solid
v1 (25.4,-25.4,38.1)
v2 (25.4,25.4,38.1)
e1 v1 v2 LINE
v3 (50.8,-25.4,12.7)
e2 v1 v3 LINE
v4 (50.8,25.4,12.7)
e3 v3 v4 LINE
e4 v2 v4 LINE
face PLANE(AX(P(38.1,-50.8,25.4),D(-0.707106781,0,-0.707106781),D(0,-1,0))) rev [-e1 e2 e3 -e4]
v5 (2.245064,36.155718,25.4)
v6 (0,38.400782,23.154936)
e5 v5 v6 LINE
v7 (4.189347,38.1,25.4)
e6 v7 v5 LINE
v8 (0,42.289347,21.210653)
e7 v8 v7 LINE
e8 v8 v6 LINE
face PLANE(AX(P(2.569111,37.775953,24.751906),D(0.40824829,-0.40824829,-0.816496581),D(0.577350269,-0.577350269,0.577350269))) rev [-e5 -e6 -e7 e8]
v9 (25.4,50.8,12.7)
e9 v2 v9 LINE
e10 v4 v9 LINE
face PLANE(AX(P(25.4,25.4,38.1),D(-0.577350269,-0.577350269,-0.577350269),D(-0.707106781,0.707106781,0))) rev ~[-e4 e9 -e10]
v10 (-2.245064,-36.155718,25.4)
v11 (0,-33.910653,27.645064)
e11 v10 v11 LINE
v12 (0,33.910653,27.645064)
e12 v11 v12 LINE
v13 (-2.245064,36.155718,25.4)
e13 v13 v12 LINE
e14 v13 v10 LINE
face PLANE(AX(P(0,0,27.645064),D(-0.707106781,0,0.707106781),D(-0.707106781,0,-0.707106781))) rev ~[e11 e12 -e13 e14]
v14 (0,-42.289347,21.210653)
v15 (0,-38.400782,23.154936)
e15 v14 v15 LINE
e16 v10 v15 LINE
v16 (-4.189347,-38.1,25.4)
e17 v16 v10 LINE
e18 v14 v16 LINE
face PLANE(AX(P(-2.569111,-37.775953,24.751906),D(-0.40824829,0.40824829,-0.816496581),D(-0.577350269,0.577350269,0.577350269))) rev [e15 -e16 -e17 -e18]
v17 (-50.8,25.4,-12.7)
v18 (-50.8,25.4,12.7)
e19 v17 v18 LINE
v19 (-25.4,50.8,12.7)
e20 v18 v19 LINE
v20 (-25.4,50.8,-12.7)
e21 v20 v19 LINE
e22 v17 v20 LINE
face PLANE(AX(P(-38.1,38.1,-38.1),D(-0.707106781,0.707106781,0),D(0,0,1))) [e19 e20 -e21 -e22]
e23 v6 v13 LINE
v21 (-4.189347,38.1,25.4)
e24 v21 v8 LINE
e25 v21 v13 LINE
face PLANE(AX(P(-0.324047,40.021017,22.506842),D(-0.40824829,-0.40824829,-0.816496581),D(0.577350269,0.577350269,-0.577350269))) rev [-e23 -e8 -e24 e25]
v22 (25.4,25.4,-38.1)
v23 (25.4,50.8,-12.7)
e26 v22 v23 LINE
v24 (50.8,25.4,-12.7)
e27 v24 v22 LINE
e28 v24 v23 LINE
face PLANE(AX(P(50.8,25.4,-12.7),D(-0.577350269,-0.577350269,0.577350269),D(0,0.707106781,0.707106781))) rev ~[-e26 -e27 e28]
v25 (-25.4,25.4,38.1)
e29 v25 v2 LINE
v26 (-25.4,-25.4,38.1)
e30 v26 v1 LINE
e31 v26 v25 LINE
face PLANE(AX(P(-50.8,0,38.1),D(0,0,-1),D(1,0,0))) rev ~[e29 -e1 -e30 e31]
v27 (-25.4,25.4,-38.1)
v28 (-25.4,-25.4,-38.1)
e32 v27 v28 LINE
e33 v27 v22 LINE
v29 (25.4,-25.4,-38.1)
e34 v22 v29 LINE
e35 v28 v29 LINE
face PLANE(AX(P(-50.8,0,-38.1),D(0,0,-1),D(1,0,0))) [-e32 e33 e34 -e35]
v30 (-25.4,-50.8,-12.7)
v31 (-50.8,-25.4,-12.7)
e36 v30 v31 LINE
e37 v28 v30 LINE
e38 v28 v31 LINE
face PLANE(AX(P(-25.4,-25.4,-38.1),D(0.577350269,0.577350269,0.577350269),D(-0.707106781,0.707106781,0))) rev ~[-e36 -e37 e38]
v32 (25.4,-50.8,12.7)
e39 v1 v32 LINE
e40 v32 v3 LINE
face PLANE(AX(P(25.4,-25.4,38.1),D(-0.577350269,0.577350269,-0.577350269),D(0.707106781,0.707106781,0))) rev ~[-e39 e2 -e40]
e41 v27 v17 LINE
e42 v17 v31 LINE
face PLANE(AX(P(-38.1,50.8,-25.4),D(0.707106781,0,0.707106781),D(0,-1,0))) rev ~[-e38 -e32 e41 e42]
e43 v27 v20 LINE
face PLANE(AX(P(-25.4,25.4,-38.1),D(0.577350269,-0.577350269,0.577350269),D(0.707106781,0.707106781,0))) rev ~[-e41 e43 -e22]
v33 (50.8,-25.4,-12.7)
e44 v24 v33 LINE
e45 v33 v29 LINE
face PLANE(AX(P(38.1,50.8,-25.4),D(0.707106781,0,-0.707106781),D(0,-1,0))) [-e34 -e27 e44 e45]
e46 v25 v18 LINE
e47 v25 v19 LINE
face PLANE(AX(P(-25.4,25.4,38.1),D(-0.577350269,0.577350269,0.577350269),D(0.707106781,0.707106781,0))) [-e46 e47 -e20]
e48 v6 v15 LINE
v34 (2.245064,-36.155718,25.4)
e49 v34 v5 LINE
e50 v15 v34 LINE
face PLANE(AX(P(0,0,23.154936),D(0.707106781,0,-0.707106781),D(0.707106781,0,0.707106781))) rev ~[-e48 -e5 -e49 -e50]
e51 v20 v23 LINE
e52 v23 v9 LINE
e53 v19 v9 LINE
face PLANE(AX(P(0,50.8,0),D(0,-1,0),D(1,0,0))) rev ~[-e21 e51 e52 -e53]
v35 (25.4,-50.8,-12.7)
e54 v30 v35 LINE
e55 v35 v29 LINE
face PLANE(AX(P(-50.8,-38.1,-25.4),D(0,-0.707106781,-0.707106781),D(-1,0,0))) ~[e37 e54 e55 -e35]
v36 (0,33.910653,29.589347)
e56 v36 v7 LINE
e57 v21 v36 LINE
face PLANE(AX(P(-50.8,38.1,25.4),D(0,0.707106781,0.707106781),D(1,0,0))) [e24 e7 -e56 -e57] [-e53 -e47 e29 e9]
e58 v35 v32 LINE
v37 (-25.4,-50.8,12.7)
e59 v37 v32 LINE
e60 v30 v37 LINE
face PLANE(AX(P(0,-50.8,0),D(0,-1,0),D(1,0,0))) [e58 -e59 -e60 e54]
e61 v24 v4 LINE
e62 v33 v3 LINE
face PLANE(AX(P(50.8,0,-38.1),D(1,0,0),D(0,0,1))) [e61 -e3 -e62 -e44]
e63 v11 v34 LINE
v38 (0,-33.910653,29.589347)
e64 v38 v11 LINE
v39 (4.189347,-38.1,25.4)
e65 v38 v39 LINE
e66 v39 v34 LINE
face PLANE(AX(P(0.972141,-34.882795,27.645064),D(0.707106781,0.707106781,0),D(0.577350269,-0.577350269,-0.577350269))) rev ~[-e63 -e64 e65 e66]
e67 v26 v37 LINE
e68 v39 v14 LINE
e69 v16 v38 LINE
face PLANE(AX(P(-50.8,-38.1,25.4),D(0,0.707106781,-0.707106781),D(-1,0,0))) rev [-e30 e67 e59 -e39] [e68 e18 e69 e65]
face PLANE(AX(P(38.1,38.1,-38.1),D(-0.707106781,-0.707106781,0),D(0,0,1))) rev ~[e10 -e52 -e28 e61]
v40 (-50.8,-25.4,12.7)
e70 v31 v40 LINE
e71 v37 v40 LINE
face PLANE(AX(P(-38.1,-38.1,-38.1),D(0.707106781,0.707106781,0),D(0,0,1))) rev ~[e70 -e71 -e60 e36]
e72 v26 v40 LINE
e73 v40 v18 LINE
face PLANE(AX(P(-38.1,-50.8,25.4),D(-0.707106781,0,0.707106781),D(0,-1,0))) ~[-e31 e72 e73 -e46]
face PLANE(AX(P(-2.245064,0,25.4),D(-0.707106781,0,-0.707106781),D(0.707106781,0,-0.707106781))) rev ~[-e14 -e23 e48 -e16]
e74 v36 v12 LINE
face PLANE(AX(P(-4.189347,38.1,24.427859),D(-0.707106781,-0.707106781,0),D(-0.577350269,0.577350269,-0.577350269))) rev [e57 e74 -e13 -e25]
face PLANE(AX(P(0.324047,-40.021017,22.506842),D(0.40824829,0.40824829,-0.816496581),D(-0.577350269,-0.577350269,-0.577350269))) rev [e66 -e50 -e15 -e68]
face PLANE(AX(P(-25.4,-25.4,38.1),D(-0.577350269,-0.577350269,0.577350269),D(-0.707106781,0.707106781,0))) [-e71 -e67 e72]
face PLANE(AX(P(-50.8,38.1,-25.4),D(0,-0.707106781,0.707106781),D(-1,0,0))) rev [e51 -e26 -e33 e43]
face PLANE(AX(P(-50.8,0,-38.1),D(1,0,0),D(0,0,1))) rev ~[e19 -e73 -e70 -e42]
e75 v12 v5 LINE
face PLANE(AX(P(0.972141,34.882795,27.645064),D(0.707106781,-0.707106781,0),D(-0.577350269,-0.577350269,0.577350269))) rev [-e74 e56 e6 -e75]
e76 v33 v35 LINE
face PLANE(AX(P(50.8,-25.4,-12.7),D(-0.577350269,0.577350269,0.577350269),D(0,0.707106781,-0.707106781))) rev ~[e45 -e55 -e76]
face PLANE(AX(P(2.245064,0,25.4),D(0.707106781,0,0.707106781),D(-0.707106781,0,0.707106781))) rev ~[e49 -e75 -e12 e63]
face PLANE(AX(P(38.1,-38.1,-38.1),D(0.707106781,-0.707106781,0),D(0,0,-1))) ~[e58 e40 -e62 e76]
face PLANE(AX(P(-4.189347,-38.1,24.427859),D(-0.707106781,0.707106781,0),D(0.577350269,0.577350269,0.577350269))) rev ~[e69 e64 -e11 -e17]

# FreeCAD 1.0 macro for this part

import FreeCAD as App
import Part
import Sketcher
from FreeCAD import Vector
Q = App.Units.Quantity


def edges_at(feature, points):
    """Names of the edges that pass closest to the given points."""
    edges = feature.Shape.Edges
    near = lambda p: min(range(len(edges)), key=lambda i: edges[i].distToShape(Part.Vertex(*p))[0])
    return sorted({f"Edge{near(p) + 1}" for p in points})


def add_polygon(sketch, points):
    """Adds a closed chain of lines whose ends are joined by coincident constraints."""
    first, n = sketch.GeometryCount, len(points)
    for a, b in zip(points, points[1:] + points[:1]):
        sketch.addGeometry(Part.LineSegment(App.Vector(*a, 0), App.Vector(*b, 0)), False)
    for i in range(n):
        sketch.addConstraint(Sketcher.Constraint("Coincident", first + i, 2, first + (i + 1) % n, 1))

doc = App.newDocument("Part")
body = doc.addObject("PartDesign::Body", "Body")

# Sketch on XZ plane
sketch1 = doc.addObject("Sketcher::SketchObject", "Sketch")
body.addObject(sketch1)
sketch1.AttachmentSupport = (doc.XZ_Plane, [""])
sketch1.MapMode = "FlatFace"
add_polygon(sketch1, [(-51, 38), (-51, -38), (51, -38), (51, 38)])  # lines 0-3
sketch1.addConstraint(Sketcher.Constraint("Vertical", 0))
sketch1.addConstraint(Sketcher.Constraint("Horizontal", 1))
sketch1.addConstraint(Sketcher.Constraint("Vertical", 2))
sketch1.addConstraint(Sketcher.Constraint("Horizontal", 3))
sketch1.addConstraint(Sketcher.Constraint("Symmetric", 0, 2, 2, 2, -1, 1))
sketch1.addConstraint(Sketcher.Constraint("DistanceX", 1, 1, 1, 2, Q("4 in")))
sketch1.addConstraint(Sketcher.Constraint("DistanceY", 0, 2, 0, 1, Q("3 in")))
pad1 = doc.addObject("PartDesign::Pad", "Pad")
body.addObject(pad1)
pad1.Profile = sketch1
pad1.Length = Q("4 in")
pad1.Midplane = True
doc.recompute()

chamfer = doc.addObject("PartDesign::Chamfer", "Chamfer")
body.addObject(chamfer)
chamfer.Base = (pad1, ["Edge1"])
chamfer.UseAllEdges = True
chamfer.Size = Q("1 in")

# Sketch on XZ plane
sketch2 = doc.addObject("Sketcher::SketchObject", "Sketch001")
body.addObject(sketch2)
sketch2.AttachmentSupport = (doc.XZ_Plane, [""])
sketch2.MapMode = "FlatFace"
add_polygon(sketch2, [(0, 27.6), (-2.2, 25.4), (0, 23.2), (2.2, 25.4)])  # lines 0-3
sketch2.addConstraint(Sketcher.Constraint("Symmetric", 0, 2, 2, 2, -2))
sketch2.addConstraint(Sketcher.Constraint("PointOnObject", 1, 2, -2))
sketch2.addConstraint(Sketcher.Constraint("PointOnObject", 3, 2, -2))
sketch2.addConstraint(Sketcher.Constraint("Perpendicular", 0, 1))
sketch2.addConstraint(Sketcher.Constraint("Perpendicular", 1, 2))
sketch2.addConstraint(Sketcher.Constraint("DistanceY", -1, 1, 0, 2, Q("1 in")))
sketch2.addConstraint(Sketcher.Constraint("Distance", 0, Q("0.125 in")))
pocket1 = doc.addObject("PartDesign::Pocket", "Pocket")
body.addObject(pocket1)
pocket1.Profile = sketch2
pocket1.Length = Q("6 in")
pocket1.Midplane = True
doc.recompute()

chamfer2 = doc.addObject("PartDesign::Chamfer", "Chamfer001")
body.addObject(chamfer2)
chamfer2.Base = (pocket1, edges_at(pocket1, [
    (1.123, -39.223, 24.277),
    (-1.123, -39.223, 24.277),
    (1.123, 39.223, 24.277),
    (-1.123, 39.223, 24.277),
]))
chamfer2.Size = Q("0.0625 in")
doc.recompute()

chamfer3 = doc.addObject("PartDesign::Chamfer", "Chamfer002")
body.addObject(chamfer3)
chamfer3.Base = (chamfer2, edges_at(chamfer2, [
    (1.609, -37.464, 26.036),
    (-1.609, -37.464, 26.036),
    (-1.609, 37.464, 26.036),
    (1.609, 37.464, 26.036),
]))
chamfer3.Size = Q("0.0625 in")

doc.recompute()
